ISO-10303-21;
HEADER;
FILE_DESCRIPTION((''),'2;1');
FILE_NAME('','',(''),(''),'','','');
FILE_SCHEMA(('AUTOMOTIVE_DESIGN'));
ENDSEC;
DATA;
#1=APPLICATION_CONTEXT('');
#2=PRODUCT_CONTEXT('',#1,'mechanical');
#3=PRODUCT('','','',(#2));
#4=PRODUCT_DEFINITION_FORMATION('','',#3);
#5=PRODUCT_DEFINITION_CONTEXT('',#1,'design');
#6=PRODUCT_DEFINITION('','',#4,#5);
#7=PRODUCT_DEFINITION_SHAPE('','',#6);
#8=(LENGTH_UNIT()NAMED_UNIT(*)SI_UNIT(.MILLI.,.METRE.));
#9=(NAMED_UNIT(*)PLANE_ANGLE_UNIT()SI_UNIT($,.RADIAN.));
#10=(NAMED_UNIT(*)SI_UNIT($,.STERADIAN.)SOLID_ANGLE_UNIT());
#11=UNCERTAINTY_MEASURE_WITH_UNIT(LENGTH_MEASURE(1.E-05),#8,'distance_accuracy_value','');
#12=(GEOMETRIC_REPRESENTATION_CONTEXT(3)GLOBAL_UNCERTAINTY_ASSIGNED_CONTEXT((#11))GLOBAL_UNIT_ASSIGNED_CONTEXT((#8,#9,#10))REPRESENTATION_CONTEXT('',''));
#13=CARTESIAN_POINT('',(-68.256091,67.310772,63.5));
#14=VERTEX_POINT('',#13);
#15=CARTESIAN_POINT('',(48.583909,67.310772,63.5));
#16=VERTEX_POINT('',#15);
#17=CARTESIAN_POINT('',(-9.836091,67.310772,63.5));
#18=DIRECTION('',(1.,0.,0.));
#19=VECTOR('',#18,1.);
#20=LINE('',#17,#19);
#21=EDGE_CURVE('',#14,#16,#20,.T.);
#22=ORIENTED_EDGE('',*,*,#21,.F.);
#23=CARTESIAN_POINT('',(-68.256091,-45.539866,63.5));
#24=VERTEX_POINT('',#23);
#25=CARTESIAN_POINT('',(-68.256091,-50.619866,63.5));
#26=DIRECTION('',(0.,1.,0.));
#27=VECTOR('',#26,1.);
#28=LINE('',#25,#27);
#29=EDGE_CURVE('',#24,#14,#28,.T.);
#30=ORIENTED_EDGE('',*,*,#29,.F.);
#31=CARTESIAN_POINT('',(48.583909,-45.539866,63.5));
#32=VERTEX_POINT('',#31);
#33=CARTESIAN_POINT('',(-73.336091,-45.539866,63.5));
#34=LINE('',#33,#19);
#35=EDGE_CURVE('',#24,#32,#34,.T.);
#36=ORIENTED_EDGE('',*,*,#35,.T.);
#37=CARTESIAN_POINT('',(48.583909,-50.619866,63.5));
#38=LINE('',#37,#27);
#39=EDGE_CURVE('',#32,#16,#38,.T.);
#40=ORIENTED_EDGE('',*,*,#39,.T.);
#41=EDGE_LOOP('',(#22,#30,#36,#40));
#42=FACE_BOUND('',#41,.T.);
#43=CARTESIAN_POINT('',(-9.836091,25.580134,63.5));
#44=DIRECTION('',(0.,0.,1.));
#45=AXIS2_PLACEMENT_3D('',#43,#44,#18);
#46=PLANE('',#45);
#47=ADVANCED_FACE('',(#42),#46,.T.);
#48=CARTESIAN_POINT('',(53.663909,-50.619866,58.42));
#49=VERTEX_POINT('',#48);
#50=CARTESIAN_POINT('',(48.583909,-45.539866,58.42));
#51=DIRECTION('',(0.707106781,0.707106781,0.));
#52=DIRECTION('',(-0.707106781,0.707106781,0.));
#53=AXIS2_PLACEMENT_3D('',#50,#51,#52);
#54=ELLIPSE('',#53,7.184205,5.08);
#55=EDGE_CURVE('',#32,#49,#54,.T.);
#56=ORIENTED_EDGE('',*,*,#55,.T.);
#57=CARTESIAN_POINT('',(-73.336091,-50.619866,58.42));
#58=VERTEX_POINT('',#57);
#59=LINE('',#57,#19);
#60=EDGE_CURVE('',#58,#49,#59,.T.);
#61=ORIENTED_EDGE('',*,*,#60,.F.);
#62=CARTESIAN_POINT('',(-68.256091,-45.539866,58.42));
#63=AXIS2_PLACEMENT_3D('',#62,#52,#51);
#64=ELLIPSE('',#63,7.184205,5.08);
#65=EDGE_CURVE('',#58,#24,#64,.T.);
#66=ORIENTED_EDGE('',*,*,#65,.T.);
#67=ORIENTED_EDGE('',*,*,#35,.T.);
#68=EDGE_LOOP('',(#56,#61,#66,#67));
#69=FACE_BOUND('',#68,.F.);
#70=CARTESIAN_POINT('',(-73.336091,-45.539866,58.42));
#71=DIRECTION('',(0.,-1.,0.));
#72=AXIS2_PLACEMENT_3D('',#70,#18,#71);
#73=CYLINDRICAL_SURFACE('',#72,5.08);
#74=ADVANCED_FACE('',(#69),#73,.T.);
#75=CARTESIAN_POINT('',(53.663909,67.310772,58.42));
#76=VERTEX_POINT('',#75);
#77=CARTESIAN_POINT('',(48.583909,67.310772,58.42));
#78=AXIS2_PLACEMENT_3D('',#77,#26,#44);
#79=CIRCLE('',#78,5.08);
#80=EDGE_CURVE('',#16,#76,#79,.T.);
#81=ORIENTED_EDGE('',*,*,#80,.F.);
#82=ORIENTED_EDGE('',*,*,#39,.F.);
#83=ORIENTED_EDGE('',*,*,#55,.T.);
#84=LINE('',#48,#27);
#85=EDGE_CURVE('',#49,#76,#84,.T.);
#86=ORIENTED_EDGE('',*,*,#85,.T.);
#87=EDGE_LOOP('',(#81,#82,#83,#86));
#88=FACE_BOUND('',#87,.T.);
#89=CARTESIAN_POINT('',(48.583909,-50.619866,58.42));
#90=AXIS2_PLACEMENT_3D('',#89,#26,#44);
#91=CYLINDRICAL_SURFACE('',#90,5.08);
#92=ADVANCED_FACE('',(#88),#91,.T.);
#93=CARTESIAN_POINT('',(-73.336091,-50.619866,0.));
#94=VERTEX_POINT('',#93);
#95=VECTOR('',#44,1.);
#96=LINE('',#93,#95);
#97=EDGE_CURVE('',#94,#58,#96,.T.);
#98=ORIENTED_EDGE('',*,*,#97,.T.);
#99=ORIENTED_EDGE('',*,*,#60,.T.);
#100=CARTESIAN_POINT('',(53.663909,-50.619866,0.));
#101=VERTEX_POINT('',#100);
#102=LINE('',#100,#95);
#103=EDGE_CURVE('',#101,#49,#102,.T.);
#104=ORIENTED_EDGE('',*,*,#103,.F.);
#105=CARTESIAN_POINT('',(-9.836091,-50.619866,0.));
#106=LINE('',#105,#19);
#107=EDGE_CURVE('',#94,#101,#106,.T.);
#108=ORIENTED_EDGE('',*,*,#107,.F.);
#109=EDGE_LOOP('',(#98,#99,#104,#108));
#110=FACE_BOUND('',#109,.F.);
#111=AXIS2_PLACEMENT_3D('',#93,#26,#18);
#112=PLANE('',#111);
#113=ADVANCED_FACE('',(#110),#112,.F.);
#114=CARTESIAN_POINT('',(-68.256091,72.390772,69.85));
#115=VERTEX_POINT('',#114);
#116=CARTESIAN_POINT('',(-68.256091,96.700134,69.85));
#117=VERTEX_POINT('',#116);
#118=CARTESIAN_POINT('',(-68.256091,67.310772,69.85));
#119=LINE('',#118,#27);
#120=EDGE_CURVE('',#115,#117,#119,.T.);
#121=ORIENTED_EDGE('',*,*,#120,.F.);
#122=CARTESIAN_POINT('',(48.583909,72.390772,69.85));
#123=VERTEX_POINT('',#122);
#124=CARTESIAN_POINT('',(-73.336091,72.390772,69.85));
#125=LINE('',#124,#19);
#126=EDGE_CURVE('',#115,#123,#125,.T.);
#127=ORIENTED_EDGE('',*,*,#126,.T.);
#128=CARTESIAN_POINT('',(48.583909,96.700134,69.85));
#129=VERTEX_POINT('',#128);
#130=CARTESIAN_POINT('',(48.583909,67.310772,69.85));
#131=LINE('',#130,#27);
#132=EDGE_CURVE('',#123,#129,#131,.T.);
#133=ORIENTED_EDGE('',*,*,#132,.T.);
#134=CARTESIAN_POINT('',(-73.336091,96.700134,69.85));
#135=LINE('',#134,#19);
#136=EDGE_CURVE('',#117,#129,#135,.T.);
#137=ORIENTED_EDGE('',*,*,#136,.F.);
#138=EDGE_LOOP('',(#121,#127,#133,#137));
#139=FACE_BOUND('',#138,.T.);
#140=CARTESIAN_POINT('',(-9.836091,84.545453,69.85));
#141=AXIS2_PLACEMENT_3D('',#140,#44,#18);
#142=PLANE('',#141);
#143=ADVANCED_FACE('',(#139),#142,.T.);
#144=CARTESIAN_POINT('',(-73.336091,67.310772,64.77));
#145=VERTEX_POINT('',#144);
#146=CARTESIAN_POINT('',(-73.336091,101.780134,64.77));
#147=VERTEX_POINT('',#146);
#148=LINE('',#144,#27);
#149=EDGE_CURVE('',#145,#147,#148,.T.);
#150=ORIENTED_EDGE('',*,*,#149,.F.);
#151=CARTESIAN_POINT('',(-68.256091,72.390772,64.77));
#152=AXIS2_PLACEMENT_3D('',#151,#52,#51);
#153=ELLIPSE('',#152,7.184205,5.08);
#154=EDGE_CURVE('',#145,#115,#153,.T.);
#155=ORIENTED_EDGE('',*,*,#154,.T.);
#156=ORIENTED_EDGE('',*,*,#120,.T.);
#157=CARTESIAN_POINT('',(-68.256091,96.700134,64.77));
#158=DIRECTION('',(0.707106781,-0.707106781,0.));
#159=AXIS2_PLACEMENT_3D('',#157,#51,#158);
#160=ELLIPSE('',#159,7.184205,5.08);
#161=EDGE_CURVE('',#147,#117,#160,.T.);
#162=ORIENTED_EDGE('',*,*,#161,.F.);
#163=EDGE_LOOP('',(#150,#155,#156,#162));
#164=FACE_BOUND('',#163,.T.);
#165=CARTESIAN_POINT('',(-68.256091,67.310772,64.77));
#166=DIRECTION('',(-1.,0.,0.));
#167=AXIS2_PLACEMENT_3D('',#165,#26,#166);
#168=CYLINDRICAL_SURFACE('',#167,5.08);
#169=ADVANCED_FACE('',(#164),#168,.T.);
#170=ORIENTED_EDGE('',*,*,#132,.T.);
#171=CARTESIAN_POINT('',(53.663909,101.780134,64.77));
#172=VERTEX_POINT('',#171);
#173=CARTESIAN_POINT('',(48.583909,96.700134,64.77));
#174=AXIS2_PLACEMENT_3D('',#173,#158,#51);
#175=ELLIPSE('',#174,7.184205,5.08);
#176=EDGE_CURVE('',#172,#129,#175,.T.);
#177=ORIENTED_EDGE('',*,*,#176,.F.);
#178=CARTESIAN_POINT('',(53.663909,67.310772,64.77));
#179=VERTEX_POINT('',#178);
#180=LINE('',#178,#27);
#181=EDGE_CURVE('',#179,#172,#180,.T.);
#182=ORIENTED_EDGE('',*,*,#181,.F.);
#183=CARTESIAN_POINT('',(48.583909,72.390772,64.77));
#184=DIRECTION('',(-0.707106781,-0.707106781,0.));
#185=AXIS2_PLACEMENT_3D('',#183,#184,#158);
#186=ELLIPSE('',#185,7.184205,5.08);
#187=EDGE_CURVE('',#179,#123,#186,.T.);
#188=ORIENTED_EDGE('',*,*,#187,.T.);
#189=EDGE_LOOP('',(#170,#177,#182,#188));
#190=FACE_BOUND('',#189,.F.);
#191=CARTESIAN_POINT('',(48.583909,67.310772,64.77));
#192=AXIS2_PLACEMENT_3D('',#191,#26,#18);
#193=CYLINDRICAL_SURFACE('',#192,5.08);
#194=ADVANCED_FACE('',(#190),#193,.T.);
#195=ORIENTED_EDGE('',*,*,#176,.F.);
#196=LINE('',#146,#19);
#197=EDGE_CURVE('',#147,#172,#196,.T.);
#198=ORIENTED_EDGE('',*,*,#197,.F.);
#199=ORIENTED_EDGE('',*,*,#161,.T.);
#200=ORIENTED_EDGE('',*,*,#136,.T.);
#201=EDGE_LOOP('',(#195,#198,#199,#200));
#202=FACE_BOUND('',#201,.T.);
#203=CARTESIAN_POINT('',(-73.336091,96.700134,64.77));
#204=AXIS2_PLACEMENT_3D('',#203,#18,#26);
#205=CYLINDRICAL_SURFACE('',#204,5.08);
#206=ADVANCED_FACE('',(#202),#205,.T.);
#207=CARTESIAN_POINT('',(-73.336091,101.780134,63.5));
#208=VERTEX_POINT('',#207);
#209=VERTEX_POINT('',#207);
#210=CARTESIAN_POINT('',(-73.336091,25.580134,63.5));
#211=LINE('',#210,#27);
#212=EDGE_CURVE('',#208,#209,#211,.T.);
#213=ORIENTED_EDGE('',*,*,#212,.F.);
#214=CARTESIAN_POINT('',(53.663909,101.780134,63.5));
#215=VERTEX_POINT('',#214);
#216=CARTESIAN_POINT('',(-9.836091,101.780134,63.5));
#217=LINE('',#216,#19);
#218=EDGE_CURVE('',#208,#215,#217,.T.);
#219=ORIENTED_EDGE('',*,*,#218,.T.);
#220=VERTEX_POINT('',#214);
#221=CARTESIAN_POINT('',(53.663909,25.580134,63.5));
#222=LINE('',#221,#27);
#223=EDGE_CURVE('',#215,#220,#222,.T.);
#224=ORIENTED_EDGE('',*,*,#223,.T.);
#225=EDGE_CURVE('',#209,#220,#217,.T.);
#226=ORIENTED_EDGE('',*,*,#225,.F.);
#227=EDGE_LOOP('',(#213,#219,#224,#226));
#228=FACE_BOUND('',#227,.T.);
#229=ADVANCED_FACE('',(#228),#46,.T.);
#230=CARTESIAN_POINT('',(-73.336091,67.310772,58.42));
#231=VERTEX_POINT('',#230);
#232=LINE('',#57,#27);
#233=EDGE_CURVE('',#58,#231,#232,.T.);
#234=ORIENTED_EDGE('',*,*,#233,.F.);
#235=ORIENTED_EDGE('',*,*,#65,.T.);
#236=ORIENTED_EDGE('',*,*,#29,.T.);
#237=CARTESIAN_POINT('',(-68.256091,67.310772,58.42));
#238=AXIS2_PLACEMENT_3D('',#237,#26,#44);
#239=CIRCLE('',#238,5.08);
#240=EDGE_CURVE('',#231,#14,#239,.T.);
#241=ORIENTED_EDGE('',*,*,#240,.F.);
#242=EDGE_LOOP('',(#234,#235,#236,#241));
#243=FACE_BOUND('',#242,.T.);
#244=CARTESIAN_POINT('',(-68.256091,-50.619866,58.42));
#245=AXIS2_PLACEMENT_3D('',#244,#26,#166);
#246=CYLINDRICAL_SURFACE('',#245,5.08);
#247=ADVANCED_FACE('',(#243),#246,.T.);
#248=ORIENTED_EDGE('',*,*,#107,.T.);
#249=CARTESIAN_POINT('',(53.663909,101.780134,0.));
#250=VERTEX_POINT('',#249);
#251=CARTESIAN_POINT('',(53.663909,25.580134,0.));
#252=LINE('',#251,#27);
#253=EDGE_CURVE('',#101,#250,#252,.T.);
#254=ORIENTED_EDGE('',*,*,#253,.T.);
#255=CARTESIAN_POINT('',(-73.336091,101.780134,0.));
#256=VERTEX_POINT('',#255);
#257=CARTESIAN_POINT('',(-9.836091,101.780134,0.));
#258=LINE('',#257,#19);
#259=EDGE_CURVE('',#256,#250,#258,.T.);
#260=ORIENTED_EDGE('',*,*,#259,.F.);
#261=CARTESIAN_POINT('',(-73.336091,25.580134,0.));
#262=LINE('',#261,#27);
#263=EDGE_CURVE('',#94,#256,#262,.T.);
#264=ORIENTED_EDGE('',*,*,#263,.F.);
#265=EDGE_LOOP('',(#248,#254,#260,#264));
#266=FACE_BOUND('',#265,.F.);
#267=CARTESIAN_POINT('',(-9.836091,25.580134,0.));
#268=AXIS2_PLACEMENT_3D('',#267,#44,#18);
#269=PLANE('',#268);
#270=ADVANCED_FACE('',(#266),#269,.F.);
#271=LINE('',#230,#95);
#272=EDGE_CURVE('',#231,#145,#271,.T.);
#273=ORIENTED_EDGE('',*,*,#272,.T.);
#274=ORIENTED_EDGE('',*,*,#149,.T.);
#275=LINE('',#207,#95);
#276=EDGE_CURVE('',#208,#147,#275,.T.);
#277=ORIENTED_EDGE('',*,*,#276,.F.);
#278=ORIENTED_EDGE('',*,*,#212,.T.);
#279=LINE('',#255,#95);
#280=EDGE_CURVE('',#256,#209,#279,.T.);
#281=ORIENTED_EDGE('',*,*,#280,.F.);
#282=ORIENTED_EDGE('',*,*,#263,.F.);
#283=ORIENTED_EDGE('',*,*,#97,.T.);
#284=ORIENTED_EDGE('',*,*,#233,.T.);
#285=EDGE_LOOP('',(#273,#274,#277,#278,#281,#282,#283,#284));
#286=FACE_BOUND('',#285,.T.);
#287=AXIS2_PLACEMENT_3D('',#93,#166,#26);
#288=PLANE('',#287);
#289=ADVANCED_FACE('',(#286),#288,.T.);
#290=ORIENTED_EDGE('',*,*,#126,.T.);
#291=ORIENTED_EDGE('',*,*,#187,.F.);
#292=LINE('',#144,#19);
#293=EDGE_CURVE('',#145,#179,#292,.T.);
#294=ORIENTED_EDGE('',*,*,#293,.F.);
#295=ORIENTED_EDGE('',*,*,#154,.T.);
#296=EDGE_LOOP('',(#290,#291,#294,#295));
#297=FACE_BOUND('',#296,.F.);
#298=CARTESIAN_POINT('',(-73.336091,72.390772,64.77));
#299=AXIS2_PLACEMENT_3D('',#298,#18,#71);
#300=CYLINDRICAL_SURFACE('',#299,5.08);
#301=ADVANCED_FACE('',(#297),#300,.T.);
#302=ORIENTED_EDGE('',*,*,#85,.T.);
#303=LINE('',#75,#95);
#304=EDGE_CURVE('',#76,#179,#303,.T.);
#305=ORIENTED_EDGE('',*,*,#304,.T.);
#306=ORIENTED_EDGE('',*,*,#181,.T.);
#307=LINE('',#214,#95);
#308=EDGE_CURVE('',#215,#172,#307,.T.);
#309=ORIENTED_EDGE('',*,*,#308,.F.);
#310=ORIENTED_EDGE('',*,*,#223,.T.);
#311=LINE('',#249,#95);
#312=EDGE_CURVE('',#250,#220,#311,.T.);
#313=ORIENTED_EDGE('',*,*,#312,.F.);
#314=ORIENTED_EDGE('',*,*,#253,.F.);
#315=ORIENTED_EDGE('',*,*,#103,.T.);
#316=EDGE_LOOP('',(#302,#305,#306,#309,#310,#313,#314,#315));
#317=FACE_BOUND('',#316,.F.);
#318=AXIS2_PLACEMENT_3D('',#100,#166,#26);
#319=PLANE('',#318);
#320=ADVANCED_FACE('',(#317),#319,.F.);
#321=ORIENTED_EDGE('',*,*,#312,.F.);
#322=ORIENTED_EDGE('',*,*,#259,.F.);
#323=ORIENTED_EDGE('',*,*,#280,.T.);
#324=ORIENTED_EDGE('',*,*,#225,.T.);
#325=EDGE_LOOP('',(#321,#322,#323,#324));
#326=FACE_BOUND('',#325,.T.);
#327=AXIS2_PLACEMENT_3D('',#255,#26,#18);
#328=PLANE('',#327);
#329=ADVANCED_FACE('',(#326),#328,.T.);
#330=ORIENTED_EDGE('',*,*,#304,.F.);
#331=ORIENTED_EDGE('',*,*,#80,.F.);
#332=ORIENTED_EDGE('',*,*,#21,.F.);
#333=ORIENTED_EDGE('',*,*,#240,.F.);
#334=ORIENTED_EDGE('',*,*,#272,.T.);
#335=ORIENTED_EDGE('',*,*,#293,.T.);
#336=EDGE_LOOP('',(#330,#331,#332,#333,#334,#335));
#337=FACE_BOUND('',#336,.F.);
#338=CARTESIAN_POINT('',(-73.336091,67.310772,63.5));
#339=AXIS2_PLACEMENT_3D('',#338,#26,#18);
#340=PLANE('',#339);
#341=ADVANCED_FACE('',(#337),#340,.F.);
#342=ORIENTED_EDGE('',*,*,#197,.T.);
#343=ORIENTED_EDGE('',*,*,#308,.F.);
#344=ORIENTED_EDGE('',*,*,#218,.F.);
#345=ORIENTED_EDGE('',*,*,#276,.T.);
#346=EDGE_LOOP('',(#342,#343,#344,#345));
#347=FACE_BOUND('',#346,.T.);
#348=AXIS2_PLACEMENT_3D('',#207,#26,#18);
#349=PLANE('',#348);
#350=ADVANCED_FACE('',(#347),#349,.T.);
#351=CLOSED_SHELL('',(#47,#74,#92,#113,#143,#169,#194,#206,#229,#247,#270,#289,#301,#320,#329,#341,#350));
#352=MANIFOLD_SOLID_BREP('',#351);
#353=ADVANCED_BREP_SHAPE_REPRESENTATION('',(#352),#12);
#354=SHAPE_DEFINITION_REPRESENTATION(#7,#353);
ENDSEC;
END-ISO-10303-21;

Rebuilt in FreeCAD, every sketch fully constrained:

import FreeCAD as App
import Part
import Sketcher
from FreeCAD import Vector
Q = App.Units.Quantity


def edges_at(feature, points):
    """Names of the edges that pass closest to the given points."""
    edges = feature.Shape.Edges
    near = lambda p: min(range(len(edges)), key=lambda i: edges[i].distToShape(Part.Vertex(*p))[0])
    return sorted({f"Edge{near(p) + 1}" for p in points})


def add_polygon(sketch, points):
    """Adds a closed chain of lines whose ends are joined by coincident constraints."""
    first, n = sketch.GeometryCount, len(points)
    for a, b in zip(points, points[1:] + points[:1]):
        sketch.addGeometry(Part.LineSegment(App.Vector(*a, 0), App.Vector(*b, 0)), False)
    for i in range(n):
        sketch.addConstraint(Sketcher.Constraint("Coincident", first + i, 2, first + (i + 1) % n, 1))

doc = App.newDocument("Part")
body = doc.addObject("PartDesign::Body", "Body")

sketch1 = doc.addObject("Sketcher::SketchObject", "Sketch")
body.addObject(sketch1)
sketch1.AttachmentSupport = (doc.XY_Plane, [""])
sketch1.MapMode = "FlatFace"
add_polygon(sketch1, [(-73.336091, 101.780134), (-73.336091, -50.619866), (53.663909, -50.619866), (53.663909, 101.780134)])
sketch1.addConstraint(Sketcher.Constraint("Vertical", 0))
sketch1.addConstraint(Sketcher.Constraint("Horizontal", 1))
sketch1.addConstraint(Sketcher.Constraint("Vertical", 2))
sketch1.addConstraint(Sketcher.Constraint("Horizontal", 3))
sketch1.addConstraint(Sketcher.Constraint("DistanceX", 1, 1, 1, 2, Q("5 in")))
sketch1.addConstraint(Sketcher.Constraint("DistanceY", 0, 2, 0, 1, Q("6 in")))
sketch1.addConstraint(Sketcher.Constraint("DistanceX", 0, 2, -1, 1, 73.336091))
sketch1.addConstraint(Sketcher.Constraint("DistanceY", 0, 2, -1, 1, 50.619866))
pad1 = doc.addObject("PartDesign::Pad", "Pad")
body.addObject(pad1)
pad1.Profile = sketch1
pad1.Length = Q("2.5 in")

sketch2 = doc.addObject("Sketcher::SketchObject", "Sketch001")
body.addObject(sketch2)
sketch2.AttachmentSupport = (doc.XY_Plane, [""])
sketch2.MapMode = "FlatFace"
sketch2.AttachmentOffset = App.Placement(Vector(0, 0, 2.5 * 25.4), App.Rotation())
add_polygon(sketch2, [(-73.336091, 101.780134), (-73.336091, 67.310772), (53.663909, 67.310772), (53.663909, 101.780134)])
sketch2.addConstraint(Sketcher.Constraint("Vertical", 0))
sketch2.addConstraint(Sketcher.Constraint("Horizontal", 1))
sketch2.addConstraint(Sketcher.Constraint("Vertical", 2))
sketch2.addConstraint(Sketcher.Constraint("Horizontal", 3))
sketch2.addConstraint(Sketcher.Constraint("DistanceX", 1, 1, 1, 2, Q("5 in")))
sketch2.addConstraint(Sketcher.Constraint("DistanceY", 0, 2, 0, 1, 34.469361))
sketch2.addConstraint(Sketcher.Constraint("DistanceX", 0, 2, -1, 1, 73.336091))
sketch2.addConstraint(Sketcher.Constraint("DistanceY", -1, 1, 0, 2, 67.310772))
pad2 = doc.addObject("PartDesign::Pad", "Pad001")
body.addObject(pad2)
pad2.Profile = sketch2
pad2.Length = Q("0.25 in")
doc.recompute()

fillet = doc.addObject("PartDesign::Fillet", "Fillet")
body.addObject(fillet)
fillet.Base = (pad2, edges_at(pad2, [
    (-9.836, 67.311, 69.85),
    (53.664, 8.345, 63.5),
    (-9.836, -50.62, 63.5),
    (-73.336, 8.345, 63.5),
    (-9.836, 101.78, 69.85),
    (53.664, 84.545, 69.85),
    (-73.336, 84.545, 69.85),
]))
fillet.Radius = Q("0.2 in")

doc.recompute()
